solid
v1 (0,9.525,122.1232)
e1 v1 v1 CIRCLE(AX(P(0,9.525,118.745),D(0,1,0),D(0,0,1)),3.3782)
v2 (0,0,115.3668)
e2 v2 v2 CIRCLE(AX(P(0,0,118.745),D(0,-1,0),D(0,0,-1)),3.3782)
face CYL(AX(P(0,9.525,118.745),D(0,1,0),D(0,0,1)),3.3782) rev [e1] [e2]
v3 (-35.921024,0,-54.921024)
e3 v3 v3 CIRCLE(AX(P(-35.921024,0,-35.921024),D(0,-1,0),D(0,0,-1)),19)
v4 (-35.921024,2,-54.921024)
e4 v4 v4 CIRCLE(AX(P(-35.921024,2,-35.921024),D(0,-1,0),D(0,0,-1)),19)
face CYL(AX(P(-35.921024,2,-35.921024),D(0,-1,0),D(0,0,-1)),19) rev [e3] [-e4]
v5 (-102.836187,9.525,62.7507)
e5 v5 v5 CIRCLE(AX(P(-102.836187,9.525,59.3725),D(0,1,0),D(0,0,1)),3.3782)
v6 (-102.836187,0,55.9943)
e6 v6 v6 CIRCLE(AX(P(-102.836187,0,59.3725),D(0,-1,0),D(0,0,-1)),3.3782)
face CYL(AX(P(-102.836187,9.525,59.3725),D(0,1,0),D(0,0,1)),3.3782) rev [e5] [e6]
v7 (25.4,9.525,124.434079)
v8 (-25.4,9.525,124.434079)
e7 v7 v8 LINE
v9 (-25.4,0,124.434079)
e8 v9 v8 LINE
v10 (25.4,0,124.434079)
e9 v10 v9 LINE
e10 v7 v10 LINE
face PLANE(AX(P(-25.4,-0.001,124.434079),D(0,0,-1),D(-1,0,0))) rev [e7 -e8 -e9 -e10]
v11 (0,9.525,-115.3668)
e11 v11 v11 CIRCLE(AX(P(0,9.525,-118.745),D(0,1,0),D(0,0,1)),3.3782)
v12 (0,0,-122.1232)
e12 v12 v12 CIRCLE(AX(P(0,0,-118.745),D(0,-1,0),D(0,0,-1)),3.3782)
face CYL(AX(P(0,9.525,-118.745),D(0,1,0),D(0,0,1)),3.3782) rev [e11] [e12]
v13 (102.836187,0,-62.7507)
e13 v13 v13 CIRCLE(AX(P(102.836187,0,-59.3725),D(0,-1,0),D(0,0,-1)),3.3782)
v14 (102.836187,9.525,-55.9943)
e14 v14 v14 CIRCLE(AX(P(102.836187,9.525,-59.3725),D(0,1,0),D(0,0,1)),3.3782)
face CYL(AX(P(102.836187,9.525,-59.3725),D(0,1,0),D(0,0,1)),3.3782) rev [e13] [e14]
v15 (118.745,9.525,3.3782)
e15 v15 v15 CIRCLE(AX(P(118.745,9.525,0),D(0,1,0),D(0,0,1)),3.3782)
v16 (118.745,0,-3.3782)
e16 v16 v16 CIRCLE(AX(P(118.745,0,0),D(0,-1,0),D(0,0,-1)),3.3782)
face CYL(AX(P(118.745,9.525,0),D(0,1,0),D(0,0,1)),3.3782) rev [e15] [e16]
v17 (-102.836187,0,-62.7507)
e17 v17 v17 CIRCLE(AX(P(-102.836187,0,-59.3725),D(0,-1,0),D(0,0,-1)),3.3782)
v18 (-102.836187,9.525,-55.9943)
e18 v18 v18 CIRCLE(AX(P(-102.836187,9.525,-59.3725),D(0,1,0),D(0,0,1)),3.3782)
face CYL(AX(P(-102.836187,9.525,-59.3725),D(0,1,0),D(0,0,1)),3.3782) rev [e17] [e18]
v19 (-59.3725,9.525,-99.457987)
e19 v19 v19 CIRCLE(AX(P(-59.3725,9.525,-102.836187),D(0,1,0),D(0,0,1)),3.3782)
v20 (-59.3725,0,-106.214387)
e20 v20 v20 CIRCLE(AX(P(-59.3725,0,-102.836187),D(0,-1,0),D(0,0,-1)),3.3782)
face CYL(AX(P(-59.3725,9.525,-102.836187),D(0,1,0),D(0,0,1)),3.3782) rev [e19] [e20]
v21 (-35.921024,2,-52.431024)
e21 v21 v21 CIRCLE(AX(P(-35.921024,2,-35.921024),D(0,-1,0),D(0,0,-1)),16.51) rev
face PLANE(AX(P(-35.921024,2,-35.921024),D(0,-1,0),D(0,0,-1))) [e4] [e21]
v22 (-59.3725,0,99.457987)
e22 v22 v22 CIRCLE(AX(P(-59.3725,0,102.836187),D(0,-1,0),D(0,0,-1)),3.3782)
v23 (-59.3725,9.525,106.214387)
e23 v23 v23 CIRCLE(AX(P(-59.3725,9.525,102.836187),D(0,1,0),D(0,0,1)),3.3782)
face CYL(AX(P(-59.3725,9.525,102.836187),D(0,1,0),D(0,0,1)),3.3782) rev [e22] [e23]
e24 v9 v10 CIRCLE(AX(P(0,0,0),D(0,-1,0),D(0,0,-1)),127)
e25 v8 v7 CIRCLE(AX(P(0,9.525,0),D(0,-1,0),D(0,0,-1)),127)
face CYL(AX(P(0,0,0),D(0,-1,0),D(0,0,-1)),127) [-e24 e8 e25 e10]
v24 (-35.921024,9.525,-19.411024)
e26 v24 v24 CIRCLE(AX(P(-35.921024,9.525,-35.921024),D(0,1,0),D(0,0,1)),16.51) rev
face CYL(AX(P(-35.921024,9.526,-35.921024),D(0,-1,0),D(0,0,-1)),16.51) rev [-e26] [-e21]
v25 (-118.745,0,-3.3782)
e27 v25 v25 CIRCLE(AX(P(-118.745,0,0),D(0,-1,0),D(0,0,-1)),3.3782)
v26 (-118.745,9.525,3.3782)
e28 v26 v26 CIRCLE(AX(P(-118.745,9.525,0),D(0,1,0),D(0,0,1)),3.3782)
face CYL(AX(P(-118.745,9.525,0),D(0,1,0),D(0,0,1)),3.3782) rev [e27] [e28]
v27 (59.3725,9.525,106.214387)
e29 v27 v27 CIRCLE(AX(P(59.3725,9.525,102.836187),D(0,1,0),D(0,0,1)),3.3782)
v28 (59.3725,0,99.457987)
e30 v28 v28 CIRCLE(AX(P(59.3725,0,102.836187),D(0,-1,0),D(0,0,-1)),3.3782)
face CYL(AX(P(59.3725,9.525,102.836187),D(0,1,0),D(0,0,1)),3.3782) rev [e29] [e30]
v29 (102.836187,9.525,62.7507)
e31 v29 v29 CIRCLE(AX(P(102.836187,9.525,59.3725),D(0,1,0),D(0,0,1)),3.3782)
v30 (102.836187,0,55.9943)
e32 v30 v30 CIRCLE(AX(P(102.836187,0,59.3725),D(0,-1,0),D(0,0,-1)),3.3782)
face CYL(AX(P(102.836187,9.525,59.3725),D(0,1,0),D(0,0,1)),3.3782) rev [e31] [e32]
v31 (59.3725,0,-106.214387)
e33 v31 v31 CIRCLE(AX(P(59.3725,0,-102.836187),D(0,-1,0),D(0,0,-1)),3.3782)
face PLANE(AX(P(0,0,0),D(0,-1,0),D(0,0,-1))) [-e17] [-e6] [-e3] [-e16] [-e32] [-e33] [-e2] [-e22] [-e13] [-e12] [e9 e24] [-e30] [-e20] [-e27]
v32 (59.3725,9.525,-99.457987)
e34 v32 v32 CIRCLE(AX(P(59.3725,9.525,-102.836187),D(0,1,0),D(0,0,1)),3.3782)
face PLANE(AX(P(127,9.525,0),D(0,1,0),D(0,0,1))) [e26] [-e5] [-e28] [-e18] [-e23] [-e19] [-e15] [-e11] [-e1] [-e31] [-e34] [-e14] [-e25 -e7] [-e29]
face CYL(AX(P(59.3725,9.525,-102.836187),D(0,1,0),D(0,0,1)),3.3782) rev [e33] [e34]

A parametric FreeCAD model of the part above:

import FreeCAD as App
import Part
import Sketcher

V = App.Vector
Q = App.Units.Quantity

doc = App.newDocument("Part")
body = doc.addObject("PartDesign::Body", "Body")

# Sketch on XY plane
sketch1 = body.newObject("Sketcher::SketchObject", "Sketch")
sketch1.AttachmentSupport = (doc.getObject("XY_Plane"), [""])
sketch1.MapMode = "FlatFace"
sketch1.addGeometry(Part.LineSegment(V(0, 10, 0), V(0, 0, 0)), False)
sketch1.addGeometry(Part.LineSegment(V(0, 0, 0), V(127, 0, 0)), False)
sketch1.addGeometry(Part.LineSegment(V(127, 0, 0), V(127, 10, 0)), False)
sketch1.addGeometry(Part.LineSegment(V(127, 10, 0), V(0, 10, 0)), False)
sketch1.addConstraint(Sketcher.Constraint("Coincident", 0, 2, 1, 1))
sketch1.addConstraint(Sketcher.Constraint("Coincident", 1, 2, 2, 1))
sketch1.addConstraint(Sketcher.Constraint("Coincident", 2, 2, 3, 1))
sketch1.addConstraint(Sketcher.Constraint("Coincident", 3, 2, 0, 1))
sketch1.addConstraint(Sketcher.Constraint("Vertical", 0))
sketch1.addConstraint(Sketcher.Constraint("Horizontal", 1))
sketch1.addConstraint(Sketcher.Constraint("Vertical", 2))
sketch1.addConstraint(Sketcher.Constraint("Horizontal", 3))
sketch1.addConstraint(Sketcher.Constraint("Coincident", 0, 2, -1, 1))
sketch1.addConstraint(Sketcher.Constraint("DistanceX", 1, 1, 1, 2, Q("5 in")))
sketch1.addConstraint(Sketcher.Constraint("DistanceY", 0, 2, 0, 1, Q("0.375 in")))
revolution = body.newObject("PartDesign::Revolution", "Revolution")
revolution.Profile = sketch1
revolution.ReferenceAxis = (sketch1, ["V_Axis"])
revolution.Angle = 360

# Sketch on XZ plane
sketch2 = body.newObject("Sketcher::SketchObject", "Sketch001")
sketch2.AttachmentSupport = (doc.getObject("XZ_Plane"), [""])
sketch2.MapMode = "FlatFace"
sketch2.AttachmentOffset = App.Placement(V(0, 0, -0.375 * 25.4), App.Rotation())
sketch2.addGeometry(Part.Circle(V(0, -118.7, 0), V(0, 0, 1), 3.4), False)
sketch2.addGeometry(Part.Circle(V(59.4, -102.8, 0), V(0, 0, 1), 3.4), False)
sketch2.addGeometry(Part.Circle(V(102.8, -59.4, 0), V(0, 0, 1), 3.4), False)
sketch2.addGeometry(Part.Circle(V(118.7, 0, 0), V(0, 0, 1), 3.4), False)
sketch2.addGeometry(Part.Circle(V(102.8, 59.4, 0), V(0, 0, 1), 3.4), False)
sketch2.addGeometry(Part.Circle(V(59.4, 102.8, 0), V(0, 0, 1), 3.4), False)
sketch2.addGeometry(Part.Circle(V(0, 118.7, 0), V(0, 0, 1), 3.4), False)
sketch2.addGeometry(Part.Circle(V(-59.4, 102.8, 0), V(0, 0, 1), 3.4), False)
sketch2.addGeometry(Part.Circle(V(-102.8, 59.4, 0), V(0, 0, 1), 3.4), False)
sketch2.addGeometry(Part.Circle(V(-118.7, 0, 0), V(0, 0, 1), 3.4), False)
sketch2.addGeometry(Part.Circle(V(-102.8, -59.4, 0), V(0, 0, 1), 3.4), False)
sketch2.addGeometry(Part.Circle(V(-59.4, -102.8, 0), V(0, 0, 1), 3.4), False)
sketch2.addConstraint(Sketcher.Constraint("Equal", 0, 1))
sketch2.addConstraint(Sketcher.Constraint("Equal", 1, 2))
sketch2.addConstraint(Sketcher.Constraint("Equal", 2, 3))
sketch2.addConstraint(Sketcher.Constraint("Equal", 3, 4))
sketch2.addConstraint(Sketcher.Constraint("Equal", 4, 5))
sketch2.addConstraint(Sketcher.Constraint("Equal", 5, 6))
sketch2.addConstraint(Sketcher.Constraint("Equal", 6, 7))
sketch2.addConstraint(Sketcher.Constraint("Equal", 7, 8))
sketch2.addConstraint(Sketcher.Constraint("Equal", 8, 9))
sketch2.addConstraint(Sketcher.Constraint("Equal", 9, 10))
sketch2.addConstraint(Sketcher.Constraint("Equal", 10, 11))
sketch2.addConstraint(Sketcher.Constraint("Symmetric", 0, 3, 6, 3, -1, 1))
sketch2.addConstraint(Sketcher.Constraint("Symmetric", 1, 3, 7, 3, -1, 1))
sketch2.addConstraint(Sketcher.Constraint("Symmetric", 2, 3, 8, 3, -1, 1))
sketch2.addConstraint(Sketcher.Constraint("Symmetric", 3, 3, 9, 3, -1, 1))
sketch2.addConstraint(Sketcher.Constraint("Symmetric", 4, 3, 10, 3, -1, 1))
sketch2.addConstraint(Sketcher.Constraint("Symmetric", 5, 3, 11, 3, -1, 1))
sketch2.addConstraint(Sketcher.Constraint("Symmetric", 5, 3, 7, 3, -2))
sketch2.addConstraint(Sketcher.Constraint("Symmetric", 4, 3, 8, 3, -2))
sketch2.addConstraint(Sketcher.Constraint("PointOnObject", 0, 3, -2))
sketch2.addConstraint(Sketcher.Constraint("PointOnObject", 3, 3, -1))
sketch2.addConstraint(Sketcher.Constraint("Diameter", 0, Q("0.266 in")))
sketch2.addConstraint(Sketcher.Constraint("DistanceY", 0, 3, -1, 1, Q("4.675 in")))
sketch2.addConstraint(Sketcher.Constraint("DistanceX", -1, 1, 3, 3, Q("4.675 in")))
sketch2.addConstraint(Sketcher.Constraint("DistanceY", 2, 3, 4, 3, Q("4.675 in")))
sketch2.addConstraint(Sketcher.Constraint("DistanceX", 7, 3, 5, 3, Q("4.675 in")))
sketch2.addConstraint(Sketcher.Constraint("DistanceY", 1, 3, -1, 1, 102.836187))
sketch2.addConstraint(Sketcher.Constraint("DistanceX", -1, 1, 2, 3, 102.836187))
doc.recompute()
hole = body.newObject("PartDesign::Hole", "Hole")
hole.Profile = sketch2
hole.ThreadType = "None"
hole.Diameter = Q("0.266 in")
hole.DepthType = "ThroughAll"
hole.Reversed = True

# Sketch on XZ plane
sketch3 = body.newObject("Sketcher::SketchObject", "Sketch002")
sketch3.AttachmentSupport = (doc.getObject("XZ_Plane"), [""])
sketch3.MapMode = "FlatFace"
sketch3.AttachmentOffset = App.Placement(V(0, 0, -0.375 * 25.4), App.Rotation())
sketch3.addGeometry(Part.LineSegment(V(-25.4, 124.4, 0), V(-25.4, 127, 0)), False)
sketch3.addGeometry(Part.LineSegment(V(-25.4, 127, 0), V(25.4, 127, 0)), False)
sketch3.addGeometry(Part.LineSegment(V(25.4, 127, 0), V(25.4, 124.4, 0)), False)
sketch3.addGeometry(Part.LineSegment(V(25.4, 124.4, 0), V(-25.4, 124.4, 0)), False)
sketch3.addConstraint(Sketcher.Constraint("Coincident", 0, 2, 1, 1))
sketch3.addConstraint(Sketcher.Constraint("Coincident", 1, 2, 2, 1))
sketch3.addConstraint(Sketcher.Constraint("Coincident", 2, 2, 3, 1))
sketch3.addConstraint(Sketcher.Constraint("Coincident", 3, 2, 0, 1))
sketch3.addConstraint(Sketcher.Constraint("Vertical", 0))
sketch3.addConstraint(Sketcher.Constraint("Horizontal", 1))
sketch3.addConstraint(Sketcher.Constraint("Vertical", 2))
sketch3.addConstraint(Sketcher.Constraint("Horizontal", 3))
sketch3.addConstraint(Sketcher.Constraint("DistanceX", 1, 1, 1, 2, Q("2 in")))
sketch3.addConstraint(Sketcher.Constraint("DistanceX", 0, 2, -1, 1, Q("1 in")))
sketch3.addConstraint(Sketcher.Constraint("DistanceY", -1, 1, 0, 2, Q("5 in")))
sketch3.addConstraint(Sketcher.Constraint("DistanceY", 0, 1, 0, 2, 2.565921))
pocket1 = body.newObject("PartDesign::Pocket", "Pocket")
pocket1.Profile = sketch3
pocket1.Type = "UpToFirst"
pocket1.Reversed = True

# Sketch on XZ plane
sketch4 = body.newObject("Sketcher::SketchObject", "Sketch003")
sketch4.AttachmentSupport = (doc.getObject("XZ_Plane"), [""])
sketch4.MapMode = "FlatFace"
sketch4.addGeometry(Part.Circle(V(-36, -36, 0), V(0, 0, 1), 17), False)
sketch4.addConstraint(Sketcher.Constraint("Diameter", 0, Q("1.3 in")))
sketch4.addConstraint(Sketcher.Constraint("DistanceX", 0, 3, -1, 1, 35.921024))
sketch4.addConstraint(Sketcher.Constraint("DistanceY", 0, 3, -1, 1, 35.921024))
pocket2 = body.newObject("PartDesign::Pocket", "Pocket001")
pocket2.Profile = sketch4
pocket2.Type = "UpToFirst"

# Sketch on XZ plane
sketch5 = body.newObject("Sketcher::SketchObject", "Sketch004")
sketch5.AttachmentSupport = (doc.getObject("XZ_Plane"), [""])
sketch5.MapMode = "FlatFace"
sketch5.addGeometry(Part.Circle(V(-36, -36, 0), V(0, 0, 1), 19), False)
sketch5.addConstraint(Sketcher.Constraint("Diameter", 0, 38.0))
sketch5.addConstraint(Sketcher.Constraint("DistanceX", 0, 3, -1, 1, 35.921024))
sketch5.addConstraint(Sketcher.Constraint("DistanceY", 0, 3, -1, 1, 35.921024))
pocket3 = body.newObject("PartDesign::Pocket", "Pocket002")
pocket3.Profile = sketch5
pocket3.Length = 2

doc.recompute()
